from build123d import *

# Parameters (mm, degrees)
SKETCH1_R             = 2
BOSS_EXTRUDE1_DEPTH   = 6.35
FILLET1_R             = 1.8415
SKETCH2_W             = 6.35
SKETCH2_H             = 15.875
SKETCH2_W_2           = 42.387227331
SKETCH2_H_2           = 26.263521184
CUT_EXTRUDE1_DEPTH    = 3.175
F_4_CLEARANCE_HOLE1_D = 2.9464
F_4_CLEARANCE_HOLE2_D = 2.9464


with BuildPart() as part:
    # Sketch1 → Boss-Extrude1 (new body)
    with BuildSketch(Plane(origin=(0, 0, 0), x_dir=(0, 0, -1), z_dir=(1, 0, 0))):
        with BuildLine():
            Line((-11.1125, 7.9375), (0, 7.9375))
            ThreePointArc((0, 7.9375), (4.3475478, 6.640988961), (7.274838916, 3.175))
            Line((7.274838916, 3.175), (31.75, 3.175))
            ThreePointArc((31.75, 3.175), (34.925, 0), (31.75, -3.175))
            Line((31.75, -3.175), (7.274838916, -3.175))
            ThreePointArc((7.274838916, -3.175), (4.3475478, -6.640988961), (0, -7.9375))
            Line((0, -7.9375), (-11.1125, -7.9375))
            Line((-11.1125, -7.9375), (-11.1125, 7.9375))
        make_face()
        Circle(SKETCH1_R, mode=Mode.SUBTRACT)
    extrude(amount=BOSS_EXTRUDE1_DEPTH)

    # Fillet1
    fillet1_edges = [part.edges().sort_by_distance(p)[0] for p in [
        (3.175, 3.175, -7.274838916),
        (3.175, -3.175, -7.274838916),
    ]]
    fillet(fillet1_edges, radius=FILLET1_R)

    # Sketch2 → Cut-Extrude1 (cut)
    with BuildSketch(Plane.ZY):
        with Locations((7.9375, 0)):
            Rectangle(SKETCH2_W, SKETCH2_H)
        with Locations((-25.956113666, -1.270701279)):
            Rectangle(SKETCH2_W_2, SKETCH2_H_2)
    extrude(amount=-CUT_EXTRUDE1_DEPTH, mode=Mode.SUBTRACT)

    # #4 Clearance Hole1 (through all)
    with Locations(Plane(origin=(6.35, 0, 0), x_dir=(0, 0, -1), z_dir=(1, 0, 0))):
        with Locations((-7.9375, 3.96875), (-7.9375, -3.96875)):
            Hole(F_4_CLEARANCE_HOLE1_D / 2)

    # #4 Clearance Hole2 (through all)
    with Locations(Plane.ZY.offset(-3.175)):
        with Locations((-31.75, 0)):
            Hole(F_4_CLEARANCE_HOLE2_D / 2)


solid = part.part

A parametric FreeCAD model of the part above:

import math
import FreeCAD as App
import Part
import Sketcher

V = App.Vector
Q = App.Units.Quantity


def edges_at(feature, points):
    """Names of the edges that pass closest to the given points."""
    edges = feature.Shape.Edges
    near = lambda p: min(range(len(edges)), key=lambda i: edges[i].distToShape(Part.Vertex(*p))[0])
    return sorted({f"Edge{near(p) + 1}" for p in points})

doc = App.newDocument("Part")
params = doc.addObject("Spreadsheet::Sheet", "Params")
for row, (alias, value) in enumerate([
    ("sketch1_radius", "0.3125 in"),
    ("sketch1_radius2", "0.125 in"),
    ("sketch1_height", "0.4375 in"),
    ("pad1_length", "0.25 in"),
    ("fillet_radius", "0.0725 in"),
    ("sketch2_height", "0.25 in"),
    ("sketch2_width", "0.625 in"),
    ("pocket1_length", "0.125 in"),
    ("sketch3_diameter", "0.116 in"),
    ("hole_diameter", "0.116 in"),
    ("sketch4_diameter", "0.116 in"),
    ("hole2_diameter", "0.116 in"),
], start=1):
    params.set(f"A{row}", alias)
    params.set(f"B{row}", "=" + value)
    params.setAlias(f"B{row}", alias)

body = doc.addObject("PartDesign::Body", "Body")

# Sketch on YZ plane
sketch1 = body.newObject("Sketcher::SketchObject", "Sketch")
sketch1.AttachmentSupport = (doc.getObject("YZ_Plane"), [""])
sketch1.MapMode = "FlatFace"
sketch1.addGeometry([
    Part.LineSegment(V(7.9, 0, 0), V(7.9, 11.1, 0)),  # 0
    Part.LineSegment(V(7.9, 11.1, 0), V(-7.9, 11.1, 0)),  # 1
    Part.LineSegment(V(-7.9, 11.1, 0), V(-7.9, 0, 0)),  # 2
    Part.ArcOfCircle(Part.Circle(V(0, 0, 0), V(0, 0, 1), 7.9), math.radians(180), math.radians(246)),  # 3
    Part.LineSegment(V(-3.2, -7.3, 0), V(-3.2, -31.8, 0)),  # 4
    Part.ArcOfCircle(Part.Circle(V(0, -31.8, 0), V(0, 0, 1), 3.2), math.radians(180), math.radians(360)),  # 5
    Part.LineSegment(V(3.2, -31.8, 0), V(3.2, -7.3, 0)),  # 6
    Part.ArcOfCircle(Part.Circle(V(0, 0, 0), V(0, 0, 1), 7.9), math.radians(-66), math.radians(0)),  # 7
    Part.Circle(V(0, 0, 0), V(0, 0, 1), 2),  # 8
], False)
sketch1.addConstraint([
    Sketcher.Constraint("Coincident", 0, 2, 1, 1),
    Sketcher.Constraint("Coincident", 1, 2, 2, 1),
    Sketcher.Constraint("Tangent", 2, 2, 3, 1),
    Sketcher.Constraint("Coincident", 3, 2, 4, 1),
    Sketcher.Constraint("Tangent", 4, 2, 5, 1),
    Sketcher.Constraint("Tangent", 5, 2, 6, 1),
    Sketcher.Constraint("Coincident", 6, 2, 7, 1),
    Sketcher.Constraint("Tangent", 7, 2, 0, 1),
    Sketcher.Constraint("Vertical", 0),
    Sketcher.Constraint("Horizontal", 1),
    Sketcher.Constraint("Vertical", 2),
    Sketcher.Constraint("Vertical", 4),
    Sketcher.Constraint("Vertical", 6),
    Sketcher.Constraint("Coincident", 3, 3, -1, 1),
    Sketcher.Constraint("Coincident", 7, 3, -1, 1),
    Sketcher.Constraint("Coincident", 8, 3, -1, 1),
    Sketcher.Constraint("Equal", 3, 7),
    Sketcher.Constraint("PointOnObject", 5, 3, -2),
    Sketcher.Constraint("Radius", 3, Q("0.3125 in")),
    Sketcher.Constraint("Radius", 5, Q("0.125 in")),
    Sketcher.Constraint("Diameter", 8, Q("4 mm")),
    Sketcher.Constraint("DistanceY", 0, 1, 0, 2, Q("0.4375 in")),
    Sketcher.Constraint("DistanceY", 5, 3, -1, 1, Q("1.25 in")),
])
sketch1.setExpression("Constraints[18]", "Params.sketch1_radius")
sketch1.setExpression("Constraints[19]", "Params.sketch1_radius2")
sketch1.setExpression("Constraints[21]", "Params.sketch1_height")
pad1 = body.newObject("PartDesign::Pad", "Pad")
pad1.Profile = sketch1
pad1.setExpression("Length", "Params.pad1_length")
doc.recompute()

fillet = body.newObject("PartDesign::Fillet", "Fillet")
fillet.Base = (pad1, edges_at(pad1, [(3.175, 3.175, -7.275), (3.175, -3.175, -7.275)]))
fillet.setExpression("Radius", "Params.fillet_radius")

# Sketch on YZ plane
sketch2 = body.newObject("Sketcher::SketchObject", "Sketch001")
sketch2.AttachmentSupport = (doc.getObject("YZ_Plane"), [""])
sketch2.MapMode = "FlatFace"
sketch2.addGeometry([
    Part.LineSegment(V(8, 5, 0), V(-8, 5, 0)),  # 0
    Part.LineSegment(V(-8, 5, 0), V(-8, 11, 0)),  # 1
    Part.LineSegment(V(-8, 11, 0), V(8, 11, 0)),  # 2
    Part.LineSegment(V(8, 11, 0), V(8, 5, 0)),  # 3
    Part.LineSegment(V(12, -47, 0), V(-14, -47, 0)),  # 4
    Part.LineSegment(V(-14, -47, 0), V(-14, -5, 0)),  # 5
    Part.LineSegment(V(-14, -5, 0), V(12, -5, 0)),  # 6
    Part.LineSegment(V(12, -5, 0), V(12, -47, 0)),  # 7
], False)
sketch2.addConstraint([
    Sketcher.Constraint("Coincident", 0, 2, 1, 1),
    Sketcher.Constraint("Coincident", 1, 2, 2, 1),
    Sketcher.Constraint("Coincident", 2, 2, 3, 1),
    Sketcher.Constraint("Coincident", 3, 2, 0, 1),
    Sketcher.Constraint("Coincident", 4, 2, 5, 1),
    Sketcher.Constraint("Coincident", 5, 2, 6, 1),
    Sketcher.Constraint("Coincident", 6, 2, 7, 1),
    Sketcher.Constraint("Coincident", 7, 2, 4, 1),
    Sketcher.Constraint("Horizontal", 0),
    Sketcher.Constraint("Vertical", 1),
    Sketcher.Constraint("Horizontal", 2),
    Sketcher.Constraint("Vertical", 3),
    Sketcher.Constraint("Horizontal", 4),
    Sketcher.Constraint("Vertical", 5),
    Sketcher.Constraint("Horizontal", 6),
    Sketcher.Constraint("Vertical", 7),
    Sketcher.Constraint("DistanceY", 1, 1, 1, 2, Q("0.25 in")),
    Sketcher.Constraint("DistanceX", 0, 2, 0, 1, Q("0.625 in")),
    Sketcher.Constraint("DistanceX", 0, 2, -1, 1, Q("0.3125 in")),
    Sketcher.Constraint("DistanceY", -1, 1, 0, 2, Q("0.1875 in")),
    Sketcher.Constraint("DistanceY", 5, 2, -1, 1, Q("0.1875 in")),
    Sketcher.Constraint("DistanceX", 4, 2, 4, 1, Q("26.263521 mm")),
    Sketcher.Constraint("DistanceY", 5, 1, 5, 2, Q("42.387227 mm")),
    Sketcher.Constraint("DistanceX", 4, 2, -1, 1, Q("14.402462 mm")),
])
sketch2.setExpression("Constraints[16]", "Params.sketch2_height")
sketch2.setExpression("Constraints[17]", "Params.sketch2_width")
pocket1 = body.newObject("PartDesign::Pocket", "Pocket")
pocket1.Profile = sketch2
pocket1.setExpression("Length", "Params.pocket1_length")
pocket1.Reversed = True

# Sketch on YZ plane
sketch3 = body.newObject("Sketcher::SketchObject", "Sketch002")
sketch3.AttachmentSupport = (doc.getObject("YZ_Plane"), [""])
sketch3.MapMode = "FlatFace"
sketch3.AttachmentOffset = App.Placement(V(0, 0, 0.25 * 25.4), App.Rotation())
sketch3.addGeometry([
    Part.Circle(V(4, 7.9, 0), V(0, 0, 1), 1.5),
    Part.Circle(V(-4, 7.9, 0), V(0, 0, 1), 1.5),
], False)
sketch3.addConstraint([
    Sketcher.Constraint("Equal", 0, 1),
    Sketcher.Constraint("Symmetric", 0, 3, 1, 3, -2),
    Sketcher.Constraint("Diameter", 0, Q("0.116 in")),
    Sketcher.Constraint("DistanceX", -1, 1, 0, 3, Q("0.15625 in")),
    Sketcher.Constraint("DistanceY", -1, 1, 0, 3, Q("0.3125 in")),
])
sketch3.setExpression("Constraints[2]", "Params.sketch3_diameter")
doc.recompute()
hole = body.newObject("PartDesign::Hole", "Hole")
hole.Profile = sketch3
hole.ThreadType = "None"
hole.setExpression("Diameter", "Params.hole_diameter")
hole.DepthType = "ThroughAll"

# Sketch on YZ plane
sketch4 = body.newObject("Sketcher::SketchObject", "Sketch003")
sketch4.AttachmentSupport = (doc.getObject("YZ_Plane"), [""])
sketch4.MapMode = "FlatFace"
sketch4.AttachmentOffset = App.Placement(V(0, 0, 0.125 * 25.4), App.Rotation())
sketch4.addGeometry(Part.Circle(V(0, -31.8, 0), V(0, 0, 1), 1.5), False)
sketch4.addConstraint([
    Sketcher.Constraint("PointOnObject", 0, 3, -2),
    Sketcher.Constraint("Diameter", 0, Q("0.116 in")),
    Sketcher.Constraint("DistanceY", 0, 3, -1, 1, Q("1.25 in")),
])
sketch4.setExpression("Constraints[1]", "Params.sketch4_diameter")
doc.recompute()
hole2 = body.newObject("PartDesign::Hole", "Hole001")
hole2.Profile = sketch4
hole2.ThreadType = "None"
hole2.setExpression("Diameter", "Params.hole2_diameter")
hole2.DepthType = "ThroughAll"
hole2.Reversed = True

doc.recompute()
